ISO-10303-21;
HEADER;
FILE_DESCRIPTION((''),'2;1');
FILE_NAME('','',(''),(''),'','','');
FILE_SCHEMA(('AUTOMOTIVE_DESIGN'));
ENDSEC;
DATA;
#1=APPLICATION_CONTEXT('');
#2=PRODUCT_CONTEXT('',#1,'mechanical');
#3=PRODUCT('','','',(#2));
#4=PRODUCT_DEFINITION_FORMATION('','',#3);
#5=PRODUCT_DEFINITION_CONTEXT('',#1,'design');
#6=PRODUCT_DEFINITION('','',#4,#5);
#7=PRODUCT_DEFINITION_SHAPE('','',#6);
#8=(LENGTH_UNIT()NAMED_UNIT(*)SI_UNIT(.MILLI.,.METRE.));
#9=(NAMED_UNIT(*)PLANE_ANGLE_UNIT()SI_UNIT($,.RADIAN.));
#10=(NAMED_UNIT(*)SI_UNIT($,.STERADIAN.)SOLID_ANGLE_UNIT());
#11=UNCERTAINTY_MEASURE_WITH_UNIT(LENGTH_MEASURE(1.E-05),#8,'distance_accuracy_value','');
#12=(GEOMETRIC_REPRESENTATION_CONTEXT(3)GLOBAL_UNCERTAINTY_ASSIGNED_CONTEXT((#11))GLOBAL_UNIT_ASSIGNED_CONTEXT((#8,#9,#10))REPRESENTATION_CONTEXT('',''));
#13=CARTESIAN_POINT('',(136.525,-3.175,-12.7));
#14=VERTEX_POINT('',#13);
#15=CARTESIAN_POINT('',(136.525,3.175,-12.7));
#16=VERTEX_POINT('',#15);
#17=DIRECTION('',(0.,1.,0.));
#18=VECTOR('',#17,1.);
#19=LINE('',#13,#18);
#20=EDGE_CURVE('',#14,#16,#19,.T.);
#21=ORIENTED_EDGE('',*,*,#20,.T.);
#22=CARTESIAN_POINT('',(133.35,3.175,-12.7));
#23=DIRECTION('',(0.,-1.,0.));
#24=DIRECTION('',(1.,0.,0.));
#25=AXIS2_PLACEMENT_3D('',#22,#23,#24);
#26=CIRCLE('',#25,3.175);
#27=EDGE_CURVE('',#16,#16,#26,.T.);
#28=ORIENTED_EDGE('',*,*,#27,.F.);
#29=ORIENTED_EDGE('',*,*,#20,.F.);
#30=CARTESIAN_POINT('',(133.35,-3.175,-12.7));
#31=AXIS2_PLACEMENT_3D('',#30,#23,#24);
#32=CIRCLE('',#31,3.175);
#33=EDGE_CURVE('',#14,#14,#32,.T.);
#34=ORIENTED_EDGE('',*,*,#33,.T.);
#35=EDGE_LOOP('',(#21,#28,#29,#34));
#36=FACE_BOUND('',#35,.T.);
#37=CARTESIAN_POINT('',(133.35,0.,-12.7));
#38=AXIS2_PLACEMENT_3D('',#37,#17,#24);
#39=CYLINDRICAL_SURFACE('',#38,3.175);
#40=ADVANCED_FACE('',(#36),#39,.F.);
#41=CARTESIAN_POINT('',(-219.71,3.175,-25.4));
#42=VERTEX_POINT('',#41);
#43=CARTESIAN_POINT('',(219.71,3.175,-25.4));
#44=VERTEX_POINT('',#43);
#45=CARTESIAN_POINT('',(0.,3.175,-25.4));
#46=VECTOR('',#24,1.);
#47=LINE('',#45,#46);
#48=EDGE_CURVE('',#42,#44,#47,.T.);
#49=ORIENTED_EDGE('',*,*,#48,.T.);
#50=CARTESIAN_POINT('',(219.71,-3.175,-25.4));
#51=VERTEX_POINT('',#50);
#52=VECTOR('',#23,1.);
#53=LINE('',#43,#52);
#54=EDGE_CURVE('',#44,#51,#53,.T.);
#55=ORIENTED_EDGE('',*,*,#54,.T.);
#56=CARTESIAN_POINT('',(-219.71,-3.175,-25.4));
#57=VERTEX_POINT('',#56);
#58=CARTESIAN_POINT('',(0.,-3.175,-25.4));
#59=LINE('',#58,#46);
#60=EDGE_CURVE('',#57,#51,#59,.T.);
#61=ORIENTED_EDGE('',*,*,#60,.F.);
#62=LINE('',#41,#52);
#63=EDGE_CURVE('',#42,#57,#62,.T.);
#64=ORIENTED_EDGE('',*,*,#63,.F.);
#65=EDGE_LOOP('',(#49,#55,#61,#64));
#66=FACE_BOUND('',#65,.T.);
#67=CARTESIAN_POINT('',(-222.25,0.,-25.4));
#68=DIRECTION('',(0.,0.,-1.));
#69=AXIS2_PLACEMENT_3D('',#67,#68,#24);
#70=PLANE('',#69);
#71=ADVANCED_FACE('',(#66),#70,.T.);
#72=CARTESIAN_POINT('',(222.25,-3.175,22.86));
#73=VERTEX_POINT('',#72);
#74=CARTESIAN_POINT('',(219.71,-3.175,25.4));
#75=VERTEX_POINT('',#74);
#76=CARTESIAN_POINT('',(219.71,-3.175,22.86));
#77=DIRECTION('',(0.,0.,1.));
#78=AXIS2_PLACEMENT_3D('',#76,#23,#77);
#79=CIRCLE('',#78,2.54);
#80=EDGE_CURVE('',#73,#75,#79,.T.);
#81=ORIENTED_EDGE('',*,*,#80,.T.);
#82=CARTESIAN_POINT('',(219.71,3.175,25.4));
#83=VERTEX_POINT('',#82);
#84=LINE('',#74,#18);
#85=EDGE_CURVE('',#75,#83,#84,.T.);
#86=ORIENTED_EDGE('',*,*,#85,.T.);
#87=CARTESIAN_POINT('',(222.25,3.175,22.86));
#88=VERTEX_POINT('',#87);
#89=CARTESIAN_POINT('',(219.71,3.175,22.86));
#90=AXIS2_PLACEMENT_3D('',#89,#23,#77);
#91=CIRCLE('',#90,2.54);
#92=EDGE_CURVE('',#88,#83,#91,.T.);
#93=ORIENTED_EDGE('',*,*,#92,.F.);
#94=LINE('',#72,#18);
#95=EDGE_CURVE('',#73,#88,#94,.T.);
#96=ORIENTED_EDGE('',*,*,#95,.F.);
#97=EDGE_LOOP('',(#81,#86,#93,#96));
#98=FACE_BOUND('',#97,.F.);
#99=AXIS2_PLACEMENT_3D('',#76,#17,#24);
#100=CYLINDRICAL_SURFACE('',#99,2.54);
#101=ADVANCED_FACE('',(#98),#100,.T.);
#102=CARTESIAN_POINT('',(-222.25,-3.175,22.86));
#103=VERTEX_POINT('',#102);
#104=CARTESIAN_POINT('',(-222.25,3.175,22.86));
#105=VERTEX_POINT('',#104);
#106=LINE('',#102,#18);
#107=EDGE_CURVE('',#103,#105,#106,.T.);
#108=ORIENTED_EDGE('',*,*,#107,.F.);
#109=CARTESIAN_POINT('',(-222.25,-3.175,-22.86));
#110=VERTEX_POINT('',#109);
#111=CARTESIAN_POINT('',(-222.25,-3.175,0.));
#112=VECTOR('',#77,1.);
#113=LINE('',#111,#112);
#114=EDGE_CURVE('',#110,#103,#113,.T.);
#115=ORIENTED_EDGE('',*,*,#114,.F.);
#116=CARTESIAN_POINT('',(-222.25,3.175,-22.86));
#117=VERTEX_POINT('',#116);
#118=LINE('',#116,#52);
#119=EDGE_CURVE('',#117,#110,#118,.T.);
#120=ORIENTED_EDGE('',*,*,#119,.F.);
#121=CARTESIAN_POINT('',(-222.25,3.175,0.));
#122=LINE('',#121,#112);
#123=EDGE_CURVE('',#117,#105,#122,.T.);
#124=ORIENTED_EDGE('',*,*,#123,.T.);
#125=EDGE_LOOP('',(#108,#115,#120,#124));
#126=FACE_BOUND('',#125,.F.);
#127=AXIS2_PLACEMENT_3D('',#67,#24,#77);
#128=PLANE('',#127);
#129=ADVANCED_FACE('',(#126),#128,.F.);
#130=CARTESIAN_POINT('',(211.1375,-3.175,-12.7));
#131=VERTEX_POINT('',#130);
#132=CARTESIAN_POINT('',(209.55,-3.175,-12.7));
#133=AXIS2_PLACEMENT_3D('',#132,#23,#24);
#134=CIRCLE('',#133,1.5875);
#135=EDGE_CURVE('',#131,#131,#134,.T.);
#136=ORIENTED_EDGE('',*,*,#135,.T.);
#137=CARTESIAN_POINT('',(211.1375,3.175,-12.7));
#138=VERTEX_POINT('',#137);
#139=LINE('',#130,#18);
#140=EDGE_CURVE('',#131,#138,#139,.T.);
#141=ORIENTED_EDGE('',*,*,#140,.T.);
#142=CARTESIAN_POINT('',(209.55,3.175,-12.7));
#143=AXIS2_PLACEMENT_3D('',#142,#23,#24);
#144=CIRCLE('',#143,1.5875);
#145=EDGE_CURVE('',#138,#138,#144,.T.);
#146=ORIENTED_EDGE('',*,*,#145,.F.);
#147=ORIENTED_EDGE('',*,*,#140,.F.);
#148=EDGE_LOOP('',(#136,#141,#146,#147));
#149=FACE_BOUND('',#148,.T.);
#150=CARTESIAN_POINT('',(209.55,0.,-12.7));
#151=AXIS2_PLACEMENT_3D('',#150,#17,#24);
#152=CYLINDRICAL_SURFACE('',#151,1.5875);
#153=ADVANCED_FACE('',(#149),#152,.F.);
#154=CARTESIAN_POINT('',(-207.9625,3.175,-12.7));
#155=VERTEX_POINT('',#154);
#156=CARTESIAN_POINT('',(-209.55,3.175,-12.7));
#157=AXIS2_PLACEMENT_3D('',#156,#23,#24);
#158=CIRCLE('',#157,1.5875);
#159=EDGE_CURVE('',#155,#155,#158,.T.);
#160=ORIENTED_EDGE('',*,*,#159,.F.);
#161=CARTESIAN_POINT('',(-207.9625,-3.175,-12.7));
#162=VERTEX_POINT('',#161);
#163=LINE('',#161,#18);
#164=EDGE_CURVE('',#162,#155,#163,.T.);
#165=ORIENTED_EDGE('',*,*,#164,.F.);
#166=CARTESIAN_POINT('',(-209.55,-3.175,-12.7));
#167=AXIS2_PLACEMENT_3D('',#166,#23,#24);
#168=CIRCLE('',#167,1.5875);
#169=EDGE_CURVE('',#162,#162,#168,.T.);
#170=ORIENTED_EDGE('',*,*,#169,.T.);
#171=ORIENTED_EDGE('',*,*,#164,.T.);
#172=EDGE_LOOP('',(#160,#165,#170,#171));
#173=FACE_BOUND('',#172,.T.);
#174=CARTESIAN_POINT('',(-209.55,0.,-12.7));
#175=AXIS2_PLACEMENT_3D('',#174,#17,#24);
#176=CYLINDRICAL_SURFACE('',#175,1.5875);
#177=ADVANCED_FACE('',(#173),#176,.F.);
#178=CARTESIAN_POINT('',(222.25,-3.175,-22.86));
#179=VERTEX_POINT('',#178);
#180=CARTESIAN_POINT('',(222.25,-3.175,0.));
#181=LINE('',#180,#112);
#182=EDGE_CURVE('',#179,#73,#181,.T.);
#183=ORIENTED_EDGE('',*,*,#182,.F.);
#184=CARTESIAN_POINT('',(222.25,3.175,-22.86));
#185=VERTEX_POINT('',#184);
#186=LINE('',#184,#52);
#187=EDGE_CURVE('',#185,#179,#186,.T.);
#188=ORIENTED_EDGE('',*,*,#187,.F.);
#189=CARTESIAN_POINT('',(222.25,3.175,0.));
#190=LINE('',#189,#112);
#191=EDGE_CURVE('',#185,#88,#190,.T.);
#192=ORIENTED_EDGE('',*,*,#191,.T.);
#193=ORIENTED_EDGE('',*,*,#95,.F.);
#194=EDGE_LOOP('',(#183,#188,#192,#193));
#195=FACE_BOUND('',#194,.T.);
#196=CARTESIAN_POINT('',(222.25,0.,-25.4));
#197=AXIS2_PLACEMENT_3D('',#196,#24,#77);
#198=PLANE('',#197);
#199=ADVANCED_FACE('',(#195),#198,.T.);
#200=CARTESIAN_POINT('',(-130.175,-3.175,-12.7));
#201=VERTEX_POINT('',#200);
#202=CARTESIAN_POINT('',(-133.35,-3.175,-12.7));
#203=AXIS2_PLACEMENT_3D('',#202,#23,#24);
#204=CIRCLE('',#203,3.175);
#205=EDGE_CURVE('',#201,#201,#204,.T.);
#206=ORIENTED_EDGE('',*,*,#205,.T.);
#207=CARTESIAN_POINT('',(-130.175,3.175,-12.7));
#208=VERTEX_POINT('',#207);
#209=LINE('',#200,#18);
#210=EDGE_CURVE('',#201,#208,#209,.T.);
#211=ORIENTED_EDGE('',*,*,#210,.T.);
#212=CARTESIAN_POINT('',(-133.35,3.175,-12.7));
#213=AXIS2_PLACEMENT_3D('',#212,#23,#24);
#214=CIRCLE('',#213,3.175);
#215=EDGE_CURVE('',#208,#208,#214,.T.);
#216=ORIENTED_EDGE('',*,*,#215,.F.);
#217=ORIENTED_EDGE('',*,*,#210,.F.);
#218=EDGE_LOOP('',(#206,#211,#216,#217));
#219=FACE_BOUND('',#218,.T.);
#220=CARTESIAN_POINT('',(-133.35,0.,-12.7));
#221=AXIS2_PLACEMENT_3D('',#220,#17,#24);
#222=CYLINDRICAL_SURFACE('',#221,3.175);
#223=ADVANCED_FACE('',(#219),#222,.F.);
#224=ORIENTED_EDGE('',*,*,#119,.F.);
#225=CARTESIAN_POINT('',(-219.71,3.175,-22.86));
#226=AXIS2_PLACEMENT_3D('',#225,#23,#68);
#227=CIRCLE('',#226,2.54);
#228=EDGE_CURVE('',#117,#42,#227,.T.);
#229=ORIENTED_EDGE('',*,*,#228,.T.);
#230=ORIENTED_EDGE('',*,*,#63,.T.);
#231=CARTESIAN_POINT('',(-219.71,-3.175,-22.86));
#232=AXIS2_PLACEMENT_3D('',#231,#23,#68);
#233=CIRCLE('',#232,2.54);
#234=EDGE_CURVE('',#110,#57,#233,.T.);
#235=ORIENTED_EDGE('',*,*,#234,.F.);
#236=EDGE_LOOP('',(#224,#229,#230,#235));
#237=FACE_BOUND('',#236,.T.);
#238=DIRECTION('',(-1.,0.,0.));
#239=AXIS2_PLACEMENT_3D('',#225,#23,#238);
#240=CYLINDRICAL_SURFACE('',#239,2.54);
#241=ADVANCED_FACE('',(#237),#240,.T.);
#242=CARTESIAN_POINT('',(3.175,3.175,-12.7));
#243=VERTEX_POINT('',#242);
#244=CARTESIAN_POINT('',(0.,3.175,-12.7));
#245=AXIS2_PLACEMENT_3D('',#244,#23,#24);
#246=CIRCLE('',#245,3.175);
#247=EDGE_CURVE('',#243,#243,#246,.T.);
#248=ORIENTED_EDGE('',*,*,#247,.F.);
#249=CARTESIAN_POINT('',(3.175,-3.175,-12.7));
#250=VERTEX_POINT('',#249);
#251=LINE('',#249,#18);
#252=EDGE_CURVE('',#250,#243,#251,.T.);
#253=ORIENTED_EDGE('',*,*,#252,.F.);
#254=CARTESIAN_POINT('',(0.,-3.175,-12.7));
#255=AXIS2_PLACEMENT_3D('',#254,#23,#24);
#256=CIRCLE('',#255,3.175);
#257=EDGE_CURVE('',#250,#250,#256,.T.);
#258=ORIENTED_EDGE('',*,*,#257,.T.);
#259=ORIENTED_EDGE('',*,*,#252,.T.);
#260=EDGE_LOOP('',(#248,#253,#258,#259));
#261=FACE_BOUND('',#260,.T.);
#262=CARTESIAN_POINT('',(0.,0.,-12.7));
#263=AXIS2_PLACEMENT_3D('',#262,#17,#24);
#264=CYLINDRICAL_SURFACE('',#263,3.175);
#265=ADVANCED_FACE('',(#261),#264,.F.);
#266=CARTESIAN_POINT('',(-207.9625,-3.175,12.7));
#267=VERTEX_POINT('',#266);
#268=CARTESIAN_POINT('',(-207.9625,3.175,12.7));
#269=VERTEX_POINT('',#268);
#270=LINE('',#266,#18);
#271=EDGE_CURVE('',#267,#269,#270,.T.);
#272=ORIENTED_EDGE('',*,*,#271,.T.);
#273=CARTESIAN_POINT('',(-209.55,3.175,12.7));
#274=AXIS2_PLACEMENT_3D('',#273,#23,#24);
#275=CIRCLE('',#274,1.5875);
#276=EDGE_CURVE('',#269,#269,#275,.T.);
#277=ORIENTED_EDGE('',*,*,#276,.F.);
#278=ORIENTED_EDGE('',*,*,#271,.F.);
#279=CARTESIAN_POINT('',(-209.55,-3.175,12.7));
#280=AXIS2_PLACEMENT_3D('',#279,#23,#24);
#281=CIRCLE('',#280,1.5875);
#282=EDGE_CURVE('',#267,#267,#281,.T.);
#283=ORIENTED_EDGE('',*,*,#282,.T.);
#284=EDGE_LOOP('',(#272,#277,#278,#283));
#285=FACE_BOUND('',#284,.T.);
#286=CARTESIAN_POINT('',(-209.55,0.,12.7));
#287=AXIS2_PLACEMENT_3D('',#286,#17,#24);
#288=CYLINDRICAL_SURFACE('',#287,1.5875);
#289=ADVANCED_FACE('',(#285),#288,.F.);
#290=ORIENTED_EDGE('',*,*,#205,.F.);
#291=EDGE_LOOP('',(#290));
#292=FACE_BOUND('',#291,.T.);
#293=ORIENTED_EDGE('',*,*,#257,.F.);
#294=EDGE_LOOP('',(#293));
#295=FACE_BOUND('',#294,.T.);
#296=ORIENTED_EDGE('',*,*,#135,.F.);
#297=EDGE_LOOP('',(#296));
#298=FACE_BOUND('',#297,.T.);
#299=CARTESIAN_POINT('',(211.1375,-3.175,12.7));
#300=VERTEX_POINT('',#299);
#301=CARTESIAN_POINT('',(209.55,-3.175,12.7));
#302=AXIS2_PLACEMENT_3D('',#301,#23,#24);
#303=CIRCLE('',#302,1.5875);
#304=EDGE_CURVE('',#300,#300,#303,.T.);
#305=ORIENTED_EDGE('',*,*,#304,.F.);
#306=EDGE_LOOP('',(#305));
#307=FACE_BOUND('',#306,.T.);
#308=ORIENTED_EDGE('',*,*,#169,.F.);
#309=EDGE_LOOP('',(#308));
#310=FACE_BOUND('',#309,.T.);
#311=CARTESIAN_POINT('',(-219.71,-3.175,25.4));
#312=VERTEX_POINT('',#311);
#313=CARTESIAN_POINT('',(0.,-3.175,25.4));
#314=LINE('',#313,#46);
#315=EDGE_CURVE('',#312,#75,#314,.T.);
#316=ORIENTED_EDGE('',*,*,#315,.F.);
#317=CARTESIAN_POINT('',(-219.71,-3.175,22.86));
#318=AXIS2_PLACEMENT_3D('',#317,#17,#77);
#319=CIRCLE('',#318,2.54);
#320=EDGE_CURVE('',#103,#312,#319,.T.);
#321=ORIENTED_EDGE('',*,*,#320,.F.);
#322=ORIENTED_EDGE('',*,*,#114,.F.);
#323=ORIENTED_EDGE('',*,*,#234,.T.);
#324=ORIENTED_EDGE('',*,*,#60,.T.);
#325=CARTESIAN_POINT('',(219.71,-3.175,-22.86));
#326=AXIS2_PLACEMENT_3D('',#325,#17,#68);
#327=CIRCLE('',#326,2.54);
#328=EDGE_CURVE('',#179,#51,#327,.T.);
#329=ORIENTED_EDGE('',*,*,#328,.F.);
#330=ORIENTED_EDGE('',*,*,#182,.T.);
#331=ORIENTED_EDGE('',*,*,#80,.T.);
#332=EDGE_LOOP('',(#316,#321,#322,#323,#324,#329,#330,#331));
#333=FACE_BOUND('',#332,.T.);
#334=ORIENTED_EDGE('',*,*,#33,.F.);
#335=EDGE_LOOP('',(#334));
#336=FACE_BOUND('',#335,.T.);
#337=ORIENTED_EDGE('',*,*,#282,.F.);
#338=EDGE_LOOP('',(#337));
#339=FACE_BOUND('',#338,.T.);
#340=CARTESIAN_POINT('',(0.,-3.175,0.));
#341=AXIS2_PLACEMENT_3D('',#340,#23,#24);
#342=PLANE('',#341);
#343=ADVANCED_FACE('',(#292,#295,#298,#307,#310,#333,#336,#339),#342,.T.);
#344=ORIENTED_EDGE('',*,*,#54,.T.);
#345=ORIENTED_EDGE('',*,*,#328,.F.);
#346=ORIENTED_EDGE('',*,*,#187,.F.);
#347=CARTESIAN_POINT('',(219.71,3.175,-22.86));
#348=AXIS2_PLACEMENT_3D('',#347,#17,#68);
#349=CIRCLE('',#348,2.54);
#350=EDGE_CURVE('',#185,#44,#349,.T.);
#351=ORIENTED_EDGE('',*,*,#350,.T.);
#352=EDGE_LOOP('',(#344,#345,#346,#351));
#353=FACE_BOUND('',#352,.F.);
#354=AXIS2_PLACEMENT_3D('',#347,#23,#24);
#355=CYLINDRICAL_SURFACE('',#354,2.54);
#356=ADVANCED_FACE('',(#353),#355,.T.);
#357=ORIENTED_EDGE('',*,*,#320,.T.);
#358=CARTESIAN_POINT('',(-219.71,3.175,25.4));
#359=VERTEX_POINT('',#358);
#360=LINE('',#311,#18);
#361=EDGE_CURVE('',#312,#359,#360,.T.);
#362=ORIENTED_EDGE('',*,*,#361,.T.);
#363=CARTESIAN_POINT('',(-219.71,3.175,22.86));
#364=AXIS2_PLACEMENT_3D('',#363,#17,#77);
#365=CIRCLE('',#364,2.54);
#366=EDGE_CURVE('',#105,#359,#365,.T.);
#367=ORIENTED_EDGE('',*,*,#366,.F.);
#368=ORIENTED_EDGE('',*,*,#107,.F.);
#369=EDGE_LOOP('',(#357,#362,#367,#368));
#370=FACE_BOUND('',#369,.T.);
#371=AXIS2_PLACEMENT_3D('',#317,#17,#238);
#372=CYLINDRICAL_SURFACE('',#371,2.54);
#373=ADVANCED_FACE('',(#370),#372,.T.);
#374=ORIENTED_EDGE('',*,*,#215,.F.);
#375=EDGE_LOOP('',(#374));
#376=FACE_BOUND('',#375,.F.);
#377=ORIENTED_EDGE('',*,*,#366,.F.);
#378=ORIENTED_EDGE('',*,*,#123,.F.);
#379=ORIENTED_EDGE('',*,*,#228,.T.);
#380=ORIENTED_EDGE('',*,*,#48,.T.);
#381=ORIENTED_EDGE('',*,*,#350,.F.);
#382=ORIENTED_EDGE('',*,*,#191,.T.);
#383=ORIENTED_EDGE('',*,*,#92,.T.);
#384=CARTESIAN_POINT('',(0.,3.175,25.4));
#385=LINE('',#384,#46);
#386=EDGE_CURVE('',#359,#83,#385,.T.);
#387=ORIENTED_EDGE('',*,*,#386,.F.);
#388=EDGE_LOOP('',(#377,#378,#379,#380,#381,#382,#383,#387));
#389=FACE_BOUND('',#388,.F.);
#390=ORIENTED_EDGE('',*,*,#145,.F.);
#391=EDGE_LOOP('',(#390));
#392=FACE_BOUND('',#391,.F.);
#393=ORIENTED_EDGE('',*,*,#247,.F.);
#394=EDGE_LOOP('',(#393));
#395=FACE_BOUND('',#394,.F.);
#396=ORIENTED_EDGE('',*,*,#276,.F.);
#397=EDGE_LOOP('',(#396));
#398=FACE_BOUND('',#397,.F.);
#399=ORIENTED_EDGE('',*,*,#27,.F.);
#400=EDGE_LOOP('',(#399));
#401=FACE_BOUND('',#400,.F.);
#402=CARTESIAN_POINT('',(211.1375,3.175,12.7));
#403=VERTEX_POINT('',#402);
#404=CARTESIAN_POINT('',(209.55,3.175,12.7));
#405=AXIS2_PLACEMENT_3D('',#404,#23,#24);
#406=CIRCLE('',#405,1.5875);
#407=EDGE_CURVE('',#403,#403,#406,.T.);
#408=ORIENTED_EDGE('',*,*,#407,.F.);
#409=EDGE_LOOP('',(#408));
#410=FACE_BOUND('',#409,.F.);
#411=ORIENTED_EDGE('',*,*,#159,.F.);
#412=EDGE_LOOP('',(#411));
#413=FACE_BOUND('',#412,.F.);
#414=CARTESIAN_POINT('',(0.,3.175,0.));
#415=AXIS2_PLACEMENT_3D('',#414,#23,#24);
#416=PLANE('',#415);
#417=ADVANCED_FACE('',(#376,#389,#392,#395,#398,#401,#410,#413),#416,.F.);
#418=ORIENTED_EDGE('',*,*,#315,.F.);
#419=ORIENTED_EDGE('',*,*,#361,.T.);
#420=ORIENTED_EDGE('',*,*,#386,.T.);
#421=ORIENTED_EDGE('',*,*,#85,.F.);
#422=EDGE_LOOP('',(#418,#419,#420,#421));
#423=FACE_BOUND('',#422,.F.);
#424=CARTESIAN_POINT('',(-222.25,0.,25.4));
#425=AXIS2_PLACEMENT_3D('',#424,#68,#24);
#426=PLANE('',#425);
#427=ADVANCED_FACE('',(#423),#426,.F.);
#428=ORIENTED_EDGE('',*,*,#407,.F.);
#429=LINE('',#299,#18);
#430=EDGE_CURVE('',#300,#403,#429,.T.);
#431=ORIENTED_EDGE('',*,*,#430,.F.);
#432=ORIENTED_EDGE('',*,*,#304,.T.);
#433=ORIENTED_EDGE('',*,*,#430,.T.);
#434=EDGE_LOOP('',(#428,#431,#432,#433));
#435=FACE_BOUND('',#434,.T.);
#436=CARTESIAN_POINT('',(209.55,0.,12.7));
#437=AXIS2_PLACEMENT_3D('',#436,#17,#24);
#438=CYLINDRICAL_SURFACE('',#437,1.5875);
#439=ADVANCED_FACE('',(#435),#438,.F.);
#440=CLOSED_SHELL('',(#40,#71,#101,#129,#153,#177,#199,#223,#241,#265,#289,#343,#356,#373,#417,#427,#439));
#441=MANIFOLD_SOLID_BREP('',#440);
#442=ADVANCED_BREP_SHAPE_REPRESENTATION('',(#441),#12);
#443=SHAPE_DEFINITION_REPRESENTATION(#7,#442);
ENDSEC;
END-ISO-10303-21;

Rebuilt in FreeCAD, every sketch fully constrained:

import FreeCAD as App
import Part
import Sketcher
Q = App.Units.Quantity


def edges_at(feature, points):
    """Names of the edges that pass closest to the given points."""
    edges = feature.Shape.Edges
    near = lambda p: min(range(len(edges)), key=lambda i: edges[i].distToShape(Part.Vertex(*p))[0])
    return sorted({f"Edge{near(p) + 1}" for p in points})


def add_polygon(sketch, points):
    """Adds a closed chain of lines whose ends are joined by coincident constraints."""
    first, n = sketch.GeometryCount, len(points)
    for a, b in zip(points, points[1:] + points[:1]):
        sketch.addGeometry(Part.LineSegment(App.Vector(*a, 0), App.Vector(*b, 0)), False)
    for i in range(n):
        sketch.addConstraint(Sketcher.Constraint("Coincident", first + i, 2, first + (i + 1) % n, 1))

doc = App.newDocument("Part")
body = doc.addObject("PartDesign::Body", "Body")

# Sketch on XZ plane
sketch1 = doc.addObject("Sketcher::SketchObject", "Sketch")
body.addObject(sketch1)
sketch1.AttachmentSupport = (doc.XZ_Plane, [""])
sketch1.MapMode = "FlatFace"
add_polygon(sketch1, [(-222.2, 25.4), (-222.2, -25.4), (222.2, -25.4), (222.2, 25.4)])  # lines 0-3
sketch1.addGeometry(Part.Circle(App.Vector(-209.6, -12.7, 0), App.Vector(0, 0, 1), 1.6), False)  # 4
sketch1.addGeometry(Part.Circle(App.Vector(-133.3, -12.7, 0), App.Vector(0, 0, 1), 3.2), False)  # 5
sketch1.addGeometry(Part.Circle(App.Vector(0, -12.7, 0), App.Vector(0, 0, 1), 3.2), False)  # 6
sketch1.addGeometry(Part.Circle(App.Vector(133.3, -12.7, 0), App.Vector(0, 0, 1), 3.2), False)  # 7
sketch1.addGeometry(Part.Circle(App.Vector(209.6, -12.7, 0), App.Vector(0, 0, 1), 1.6), False)  # 8
sketch1.addGeometry(Part.Circle(App.Vector(-209.6, 12.7, 0), App.Vector(0, 0, 1), 1.6), False)  # 9
sketch1.addGeometry(Part.Circle(App.Vector(209.6, 12.7, 0), App.Vector(0, 0, 1), 1.6), False)  # 10
sketch1.addConstraint(Sketcher.Constraint("Vertical", 0))
sketch1.addConstraint(Sketcher.Constraint("Horizontal", 1))
sketch1.addConstraint(Sketcher.Constraint("Vertical", 2))
sketch1.addConstraint(Sketcher.Constraint("Horizontal", 3))
sketch1.addConstraint(Sketcher.Constraint("Equal", 5, 6))
sketch1.addConstraint(Sketcher.Constraint("Equal", 6, 7))
sketch1.addConstraint(Sketcher.Constraint("Equal", 4, 8))
sketch1.addConstraint(Sketcher.Constraint("Equal", 8, 9))
sketch1.addConstraint(Sketcher.Constraint("Equal", 9, 10))
sketch1.addConstraint(Sketcher.Constraint("Symmetric", 8, 3, 9, 3, -1, 1))
sketch1.addConstraint(Sketcher.Constraint("Symmetric", 4, 3, 10, 3, -1, 1))
sketch1.addConstraint(Sketcher.Constraint("Symmetric", 0, 2, 2, 2, -1, 1))
sketch1.addConstraint(Sketcher.Constraint("Symmetric", 5, 3, 7, 3, -2))
sketch1.addConstraint(Sketcher.Constraint("Symmetric", 4, 3, 8, 3, -2))
sketch1.addConstraint(Sketcher.Constraint("PointOnObject", 6, 3, -2))
sketch1.addConstraint(Sketcher.Constraint("Horizontal", 4, 3, 5, 3))
sketch1.addConstraint(Sketcher.Constraint("Horizontal", 5, 3, 6, 3))
sketch1.addConstraint(Sketcher.Constraint("Diameter", 5, Q("0.25 in")))
sketch1.addConstraint(Sketcher.Constraint("DistanceY", 0, 2, 0, 1, Q("2 in")))
sketch1.addConstraint(Sketcher.Constraint("Diameter", 4, Q("0.125 in")))
sketch1.addConstraint(Sketcher.Constraint("DistanceX", 1, 1, 1, 2, Q("17.5 in")))
sketch1.addConstraint(Sketcher.Constraint("DistanceX", 4, 3, 5, 3, Q("3 in")))
sketch1.addConstraint(Sketcher.Constraint("DistanceY", 4, 3, 9, 3, Q("1 in")))
sketch1.addConstraint(Sketcher.Constraint("DistanceX", 0, 2, 7, 3, Q("14 in")))
pad1 = doc.addObject("PartDesign::Pad", "Pad")
body.addObject(pad1)
pad1.Profile = sketch1
pad1.Length = Q("0.25 in")
pad1.Midplane = True
doc.recompute()

fillet = doc.addObject("PartDesign::Fillet", "Fillet")
body.addObject(fillet)
fillet.Base = (pad1, edges_at(pad1, [
    (-222.25, 0, 25.4),
    (-222.25, 0, -25.4),
    (222.25, 0, 25.4),
    (222.25, 0, -25.4),
]))
fillet.Radius = Q("0.1 in")

doc.recompute()
